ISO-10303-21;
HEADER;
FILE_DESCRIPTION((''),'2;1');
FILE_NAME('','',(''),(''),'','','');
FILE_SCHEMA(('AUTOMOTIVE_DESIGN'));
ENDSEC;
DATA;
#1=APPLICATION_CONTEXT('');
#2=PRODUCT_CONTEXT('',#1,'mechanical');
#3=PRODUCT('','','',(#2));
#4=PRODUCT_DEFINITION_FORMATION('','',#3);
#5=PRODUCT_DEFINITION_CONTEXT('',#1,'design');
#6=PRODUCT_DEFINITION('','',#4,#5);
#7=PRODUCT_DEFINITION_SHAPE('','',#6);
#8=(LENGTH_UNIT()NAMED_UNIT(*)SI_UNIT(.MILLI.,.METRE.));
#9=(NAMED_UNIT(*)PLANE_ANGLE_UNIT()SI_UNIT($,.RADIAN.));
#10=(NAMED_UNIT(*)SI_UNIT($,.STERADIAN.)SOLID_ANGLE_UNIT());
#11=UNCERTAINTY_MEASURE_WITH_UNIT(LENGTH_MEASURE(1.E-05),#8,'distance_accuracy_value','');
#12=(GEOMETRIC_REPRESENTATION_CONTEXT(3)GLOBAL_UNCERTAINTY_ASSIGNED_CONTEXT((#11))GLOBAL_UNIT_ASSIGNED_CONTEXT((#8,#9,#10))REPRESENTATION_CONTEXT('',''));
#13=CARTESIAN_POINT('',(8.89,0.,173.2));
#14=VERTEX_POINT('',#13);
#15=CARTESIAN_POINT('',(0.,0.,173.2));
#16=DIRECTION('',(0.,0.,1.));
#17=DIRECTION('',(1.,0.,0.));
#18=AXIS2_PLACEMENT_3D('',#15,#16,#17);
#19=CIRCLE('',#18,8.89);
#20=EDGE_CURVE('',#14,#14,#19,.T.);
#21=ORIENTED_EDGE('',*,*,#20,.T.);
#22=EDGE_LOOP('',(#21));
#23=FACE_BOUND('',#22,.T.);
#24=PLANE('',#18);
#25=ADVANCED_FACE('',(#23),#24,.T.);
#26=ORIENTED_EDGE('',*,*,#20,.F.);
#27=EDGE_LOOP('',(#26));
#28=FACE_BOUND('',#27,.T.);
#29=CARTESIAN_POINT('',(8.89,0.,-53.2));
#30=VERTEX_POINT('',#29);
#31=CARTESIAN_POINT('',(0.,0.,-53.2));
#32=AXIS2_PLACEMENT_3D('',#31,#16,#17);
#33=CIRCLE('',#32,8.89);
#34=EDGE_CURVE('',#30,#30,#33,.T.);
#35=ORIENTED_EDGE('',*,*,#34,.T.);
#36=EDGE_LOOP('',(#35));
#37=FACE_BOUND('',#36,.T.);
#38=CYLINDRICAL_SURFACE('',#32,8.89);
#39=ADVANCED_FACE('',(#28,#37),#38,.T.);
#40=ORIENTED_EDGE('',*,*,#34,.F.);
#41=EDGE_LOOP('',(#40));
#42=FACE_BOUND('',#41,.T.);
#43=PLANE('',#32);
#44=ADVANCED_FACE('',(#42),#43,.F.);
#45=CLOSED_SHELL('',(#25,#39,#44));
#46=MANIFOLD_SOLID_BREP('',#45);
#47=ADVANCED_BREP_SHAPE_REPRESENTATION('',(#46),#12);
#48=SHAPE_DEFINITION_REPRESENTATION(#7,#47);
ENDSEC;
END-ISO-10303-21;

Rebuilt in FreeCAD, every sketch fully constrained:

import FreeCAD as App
import Part
import Sketcher

V = App.Vector

doc = App.newDocument("Part")
body = doc.addObject("PartDesign::Body", "Body")

sketch1 = body.newObject("Sketcher::SketchObject", "Sketch")
sketch1.AttachmentSupport = (doc.getObject("XY_Plane"), [""])
sketch1.MapMode = "FlatFace"
sketch1.addGeometry(Part.Circle(V(0, 0, 0), V(0, 0, 1), 9), False)
sketch1.addConstraint([
    Sketcher.Constraint("Coincident", 0, 3, -1, 1),
    Sketcher.Constraint("Diameter", 0, 17.78),
])
pad1 = body.newObject("PartDesign::Pad", "Pad")
pad1.Profile = sketch1
pad1.Type = "TwoLengths"
pad1.Length = 173.2
pad1.Length2 = 53.2

doc.recompute()
